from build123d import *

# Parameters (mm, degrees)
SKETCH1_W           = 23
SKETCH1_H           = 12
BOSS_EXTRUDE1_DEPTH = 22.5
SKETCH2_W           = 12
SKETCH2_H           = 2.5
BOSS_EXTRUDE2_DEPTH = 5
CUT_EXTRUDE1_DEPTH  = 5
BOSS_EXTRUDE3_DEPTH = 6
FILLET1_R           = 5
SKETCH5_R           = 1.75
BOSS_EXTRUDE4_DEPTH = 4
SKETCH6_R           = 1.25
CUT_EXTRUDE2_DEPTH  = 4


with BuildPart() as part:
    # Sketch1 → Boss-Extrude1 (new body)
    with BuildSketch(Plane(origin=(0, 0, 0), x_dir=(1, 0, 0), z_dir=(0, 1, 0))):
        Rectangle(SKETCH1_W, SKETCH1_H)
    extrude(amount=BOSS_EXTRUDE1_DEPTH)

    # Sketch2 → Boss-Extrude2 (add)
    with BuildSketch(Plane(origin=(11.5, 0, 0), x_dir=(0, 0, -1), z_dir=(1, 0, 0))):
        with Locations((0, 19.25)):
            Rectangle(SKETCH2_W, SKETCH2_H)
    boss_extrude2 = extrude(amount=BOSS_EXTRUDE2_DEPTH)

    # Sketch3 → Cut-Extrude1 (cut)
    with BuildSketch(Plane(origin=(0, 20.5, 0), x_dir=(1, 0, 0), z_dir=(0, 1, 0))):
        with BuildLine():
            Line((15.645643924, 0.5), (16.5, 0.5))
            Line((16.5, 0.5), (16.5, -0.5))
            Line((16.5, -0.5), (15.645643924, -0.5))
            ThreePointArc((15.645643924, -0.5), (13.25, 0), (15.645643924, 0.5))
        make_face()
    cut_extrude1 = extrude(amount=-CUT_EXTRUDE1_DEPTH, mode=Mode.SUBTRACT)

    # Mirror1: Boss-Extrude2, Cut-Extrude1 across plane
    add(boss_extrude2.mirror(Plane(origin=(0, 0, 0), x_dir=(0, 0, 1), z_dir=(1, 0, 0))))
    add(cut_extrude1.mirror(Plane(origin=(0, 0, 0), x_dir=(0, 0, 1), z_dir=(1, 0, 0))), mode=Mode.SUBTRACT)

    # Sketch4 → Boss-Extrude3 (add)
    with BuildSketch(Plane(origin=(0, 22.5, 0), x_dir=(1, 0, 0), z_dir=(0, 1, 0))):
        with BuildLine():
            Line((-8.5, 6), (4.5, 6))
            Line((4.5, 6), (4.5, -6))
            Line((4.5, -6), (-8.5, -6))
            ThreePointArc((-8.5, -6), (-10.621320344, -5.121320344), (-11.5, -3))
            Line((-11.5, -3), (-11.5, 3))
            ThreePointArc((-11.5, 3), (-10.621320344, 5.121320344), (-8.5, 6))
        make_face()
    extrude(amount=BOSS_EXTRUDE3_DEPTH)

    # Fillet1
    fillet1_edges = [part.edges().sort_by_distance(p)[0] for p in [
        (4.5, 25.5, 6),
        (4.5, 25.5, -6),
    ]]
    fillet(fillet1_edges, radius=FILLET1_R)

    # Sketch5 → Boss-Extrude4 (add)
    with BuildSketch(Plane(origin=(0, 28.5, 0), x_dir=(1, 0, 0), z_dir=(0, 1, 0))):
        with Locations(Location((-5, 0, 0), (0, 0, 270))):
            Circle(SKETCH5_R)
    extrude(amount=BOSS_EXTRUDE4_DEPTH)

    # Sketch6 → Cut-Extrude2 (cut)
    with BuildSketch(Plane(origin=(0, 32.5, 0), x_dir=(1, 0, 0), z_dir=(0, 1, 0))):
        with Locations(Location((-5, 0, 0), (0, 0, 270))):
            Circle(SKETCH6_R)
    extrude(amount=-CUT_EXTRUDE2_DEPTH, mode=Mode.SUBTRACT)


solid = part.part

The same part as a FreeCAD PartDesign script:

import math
import FreeCAD as App
import Part
import Sketcher
from FreeCAD import Vector


def edges_at(feature, points):
    """Names of the edges that pass closest to the given points."""
    edges = feature.Shape.Edges
    near = lambda p: min(range(len(edges)), key=lambda i: edges[i].distToShape(Part.Vertex(*p))[0])
    return sorted({f"Edge{near(p) + 1}" for p in points})

doc = App.newDocument("Part")
body = doc.addObject("PartDesign::Body", "Body")

# Sketch on XZ plane
sketch1 = body.newObject("Sketcher::SketchObject", "Sketch")
sketch1.AttachmentSupport = (doc.getObject("XZ_Plane"), [""])
sketch1.MapMode = "FlatFace"
sketch1.addGeometry([
    Part.LineSegment(Vector(-12, -6, 0), Vector(-12, 6, 0)),
    Part.LineSegment(Vector(-12, 6, 0), Vector(12, 6, 0)),
    Part.LineSegment(Vector(12, 6, 0), Vector(12, -6, 0)),
    Part.LineSegment(Vector(12, -6, 0), Vector(-12, -6, 0)),
], False)
sketch1.addConstraint([
    Sketcher.Constraint("Coincident", 0, 2, 1, 1),
    Sketcher.Constraint("Coincident", 1, 2, 2, 1),
    Sketcher.Constraint("Coincident", 2, 2, 3, 1),
    Sketcher.Constraint("Coincident", 3, 2, 0, 1),
    Sketcher.Constraint("Vertical", 0),
    Sketcher.Constraint("Horizontal", 1),
    Sketcher.Constraint("Vertical", 2),
    Sketcher.Constraint("Horizontal", 3),
    Sketcher.Constraint("Symmetric", 0, 2, 2, 2, -1, 1),
    Sketcher.Constraint("DistanceX", 1, 1, 1, 2, 23.0),
    Sketcher.Constraint("DistanceY", 0, 1, 0, 2, 12.0),
])
pad1 = body.newObject("PartDesign::Pad", "Pad")
pad1.Profile = sketch1
pad1.Length = 22.5
pad1.Reversed = True

# Sketch on YZ plane
sketch2 = body.newObject("Sketcher::SketchObject", "Sketch001")
sketch2.AttachmentSupport = (doc.getObject("YZ_Plane"), [""])
sketch2.MapMode = "FlatFace"
sketch2.AttachmentOffset = App.Placement(Vector(0, 0, 11.5), App.Rotation())
sketch2.addGeometry([
    Part.LineSegment(Vector(20.5, 6, 0), Vector(18, 6, 0)),
    Part.LineSegment(Vector(18, 6, 0), Vector(18, -6, 0)),
    Part.LineSegment(Vector(18, -6, 0), Vector(20.5, -6, 0)),
    Part.LineSegment(Vector(20.5, -6, 0), Vector(20.5, 6, 0)),
], False)
sketch2.addConstraint([
    Sketcher.Constraint("Coincident", 0, 2, 1, 1),
    Sketcher.Constraint("Coincident", 1, 2, 2, 1),
    Sketcher.Constraint("Coincident", 2, 2, 3, 1),
    Sketcher.Constraint("Coincident", 3, 2, 0, 1),
    Sketcher.Constraint("Horizontal", 0),
    Sketcher.Constraint("Vertical", 1),
    Sketcher.Constraint("Horizontal", 2),
    Sketcher.Constraint("Vertical", 3),
    Sketcher.Constraint("DistanceY", 1, 2, 1, 1, 12.0),
    Sketcher.Constraint("DistanceX", 0, 2, 0, 1, 2.5),
    Sketcher.Constraint("DistanceX", -1, 1, 0, 2, 18.0),
    Sketcher.Constraint("DistanceY", -1, 1, 0, 2, 6.0),
])
pad2 = body.newObject("PartDesign::Pad", "Pad001")
pad2.Profile = sketch2
pad2.Length = 5

# Sketch on XZ plane
sketch3 = body.newObject("Sketcher::SketchObject", "Sketch002")
sketch3.AttachmentSupport = (doc.getObject("XZ_Plane"), [""])
sketch3.MapMode = "FlatFace"
sketch3.AttachmentOffset = App.Placement(Vector(0, 0, -20.5), App.Rotation())
sketch3.addGeometry([
    Part.LineSegment(Vector(16.5, -0.5, 0), Vector(15.6, -0.5, 0)),
    Part.ArcOfCircle(Part.Circle(Vector(14.5, 0, 0), Vector(0, 0, 1), 1.2), math.radians(24), math.radians(336)),
    Part.LineSegment(Vector(15.6, 0.5, 0), Vector(16.5, 0.5, 0)),
    Part.LineSegment(Vector(16.5, 0.5, 0), Vector(16.5, -0.5, 0)),
], False)
sketch3.addConstraint([
    Sketcher.Constraint("Coincident", 0, 2, 1, 2),
    Sketcher.Constraint("Coincident", 1, 1, 2, 1),
    Sketcher.Constraint("Coincident", 2, 2, 3, 1),
    Sketcher.Constraint("Coincident", 3, 2, 0, 1),
    Sketcher.Constraint("Horizontal", 0),
    Sketcher.Constraint("Horizontal", 2),
    Sketcher.Constraint("Vertical", 3),
    Sketcher.Constraint("Symmetric", 0, 2, 1, 1, -1),
    Sketcher.Constraint("DistanceY", 3, 2, 3, 1, 1.0),
    Sketcher.Constraint("Radius", 1, 1.25),
    Sketcher.Constraint("DistanceX", 1, 3, 2, 2, 2.0),
    Sketcher.Constraint("DistanceX", -1, 1, 1, 3, 14.5),
])
pocket1 = body.newObject("PartDesign::Pocket", "Pocket")
pocket1.Profile = sketch3
pocket1.Length = 5
pocket1.Reversed = True
doc.recompute()

mirrored = body.newObject("PartDesign::Mirrored", "Mirrored")
mirrored.Originals = [pad2, pocket1]
mirrored.MirrorPlane = (doc.getObject("YZ_Plane"), [""])
body.Tip = mirrored

# Sketch on XZ plane
sketch4 = body.newObject("Sketcher::SketchObject", "Sketch003")
sketch4.AttachmentSupport = (doc.getObject("XZ_Plane"), [""])
sketch4.MapMode = "FlatFace"
sketch4.AttachmentOffset = App.Placement(Vector(0, 0, -22.5), App.Rotation())
sketch4.addGeometry([
    Part.LineSegment(Vector(4.5, -6, 0), Vector(-8.5, -6, 0)),  # 0
    Part.ArcOfCircle(Part.Circle(Vector(-8.5, -3, 0), Vector(0, 0, 1), 3), math.radians(180), math.radians(270)),  # 1
    Part.LineSegment(Vector(-11.5, -3, 0), Vector(-11.5, 3, 0)),  # 2
    Part.ArcOfCircle(Part.Circle(Vector(-8.5, 3, 0), Vector(0, 0, 1), 3), math.radians(90), math.radians(180)),  # 3
    Part.LineSegment(Vector(-8.5, 6, 0), Vector(4.5, 6, 0)),  # 4
    Part.LineSegment(Vector(4.5, 6, 0), Vector(4.5, -6, 0)),  # 5
], False)
sketch4.addConstraint([
    Sketcher.Constraint("Tangent", 0, 2, 1, 2),
    Sketcher.Constraint("Tangent", 1, 1, 2, 1),
    Sketcher.Constraint("Tangent", 2, 2, 3, 2),
    Sketcher.Constraint("Tangent", 3, 1, 4, 1),
    Sketcher.Constraint("Coincident", 4, 2, 5, 1),
    Sketcher.Constraint("Coincident", 5, 2, 0, 1),
    Sketcher.Constraint("Horizontal", 0),
    Sketcher.Constraint("Vertical", 2),
    Sketcher.Constraint("Horizontal", 4),
    Sketcher.Constraint("Vertical", 5),
    Sketcher.Constraint("Equal", 1, 3),
    Sketcher.Constraint("Radius", 1, 3.0),
    Sketcher.Constraint("DistanceX", 0, 2, 0, 1, 13.0),
    Sketcher.Constraint("DistanceY", 2, 1, 2, 2, 6.0),
    Sketcher.Constraint("DistanceY", 1, 3, -1, 1, 3.0),
    Sketcher.Constraint("DistanceX", 1, 3, -1, 1, 8.5),
])
pad3 = body.newObject("PartDesign::Pad", "Pad002")
pad3.Profile = sketch4
pad3.Length = 6
pad3.Reversed = True
doc.recompute()

fillet = body.newObject("PartDesign::Fillet", "Fillet")
fillet.Base = (pad3, edges_at(pad3, [(4.5, 25.5, 6), (4.5, 25.5, -6)]))
fillet.Radius = 5

# Sketch on XZ plane
sketch5 = body.newObject("Sketcher::SketchObject", "Sketch004")
sketch5.AttachmentSupport = (doc.getObject("XZ_Plane"), [""])
sketch5.MapMode = "FlatFace"
sketch5.AttachmentOffset = App.Placement(Vector(0, 0, -28.5), App.Rotation())
sketch5.addGeometry(Part.Circle(Vector(-5, 0, 0), Vector(0, 0, 1), 1.8), False)
sketch5.addConstraint([
    Sketcher.Constraint("PointOnObject", 0, 3, -1),
    Sketcher.Constraint("Diameter", 0, 3.5),
    Sketcher.Constraint("DistanceX", 0, 3, -1, 1, 5.0),
])
pad4 = body.newObject("PartDesign::Pad", "Pad003")
pad4.Profile = sketch5
pad4.Length = 4
pad4.Reversed = True

# Sketch on XZ plane
sketch6 = body.newObject("Sketcher::SketchObject", "Sketch005")
sketch6.AttachmentSupport = (doc.getObject("XZ_Plane"), [""])
sketch6.MapMode = "FlatFace"
sketch6.AttachmentOffset = App.Placement(Vector(0, 0, -32.5), App.Rotation())
sketch6.addGeometry(Part.Circle(Vector(-5, 0, 0), Vector(0, 0, 1), 1.2), False)
sketch6.addConstraint([
    Sketcher.Constraint("PointOnObject", 0, 3, -1),
    Sketcher.Constraint("Diameter", 0, 2.5),
    Sketcher.Constraint("DistanceX", 0, 3, -1, 1, 5.0),
])
pocket2 = body.newObject("PartDesign::Pocket", "Pocket001")
pocket2.Profile = sketch6
pocket2.Length = 4
pocket2.Reversed = True

doc.recompute()
